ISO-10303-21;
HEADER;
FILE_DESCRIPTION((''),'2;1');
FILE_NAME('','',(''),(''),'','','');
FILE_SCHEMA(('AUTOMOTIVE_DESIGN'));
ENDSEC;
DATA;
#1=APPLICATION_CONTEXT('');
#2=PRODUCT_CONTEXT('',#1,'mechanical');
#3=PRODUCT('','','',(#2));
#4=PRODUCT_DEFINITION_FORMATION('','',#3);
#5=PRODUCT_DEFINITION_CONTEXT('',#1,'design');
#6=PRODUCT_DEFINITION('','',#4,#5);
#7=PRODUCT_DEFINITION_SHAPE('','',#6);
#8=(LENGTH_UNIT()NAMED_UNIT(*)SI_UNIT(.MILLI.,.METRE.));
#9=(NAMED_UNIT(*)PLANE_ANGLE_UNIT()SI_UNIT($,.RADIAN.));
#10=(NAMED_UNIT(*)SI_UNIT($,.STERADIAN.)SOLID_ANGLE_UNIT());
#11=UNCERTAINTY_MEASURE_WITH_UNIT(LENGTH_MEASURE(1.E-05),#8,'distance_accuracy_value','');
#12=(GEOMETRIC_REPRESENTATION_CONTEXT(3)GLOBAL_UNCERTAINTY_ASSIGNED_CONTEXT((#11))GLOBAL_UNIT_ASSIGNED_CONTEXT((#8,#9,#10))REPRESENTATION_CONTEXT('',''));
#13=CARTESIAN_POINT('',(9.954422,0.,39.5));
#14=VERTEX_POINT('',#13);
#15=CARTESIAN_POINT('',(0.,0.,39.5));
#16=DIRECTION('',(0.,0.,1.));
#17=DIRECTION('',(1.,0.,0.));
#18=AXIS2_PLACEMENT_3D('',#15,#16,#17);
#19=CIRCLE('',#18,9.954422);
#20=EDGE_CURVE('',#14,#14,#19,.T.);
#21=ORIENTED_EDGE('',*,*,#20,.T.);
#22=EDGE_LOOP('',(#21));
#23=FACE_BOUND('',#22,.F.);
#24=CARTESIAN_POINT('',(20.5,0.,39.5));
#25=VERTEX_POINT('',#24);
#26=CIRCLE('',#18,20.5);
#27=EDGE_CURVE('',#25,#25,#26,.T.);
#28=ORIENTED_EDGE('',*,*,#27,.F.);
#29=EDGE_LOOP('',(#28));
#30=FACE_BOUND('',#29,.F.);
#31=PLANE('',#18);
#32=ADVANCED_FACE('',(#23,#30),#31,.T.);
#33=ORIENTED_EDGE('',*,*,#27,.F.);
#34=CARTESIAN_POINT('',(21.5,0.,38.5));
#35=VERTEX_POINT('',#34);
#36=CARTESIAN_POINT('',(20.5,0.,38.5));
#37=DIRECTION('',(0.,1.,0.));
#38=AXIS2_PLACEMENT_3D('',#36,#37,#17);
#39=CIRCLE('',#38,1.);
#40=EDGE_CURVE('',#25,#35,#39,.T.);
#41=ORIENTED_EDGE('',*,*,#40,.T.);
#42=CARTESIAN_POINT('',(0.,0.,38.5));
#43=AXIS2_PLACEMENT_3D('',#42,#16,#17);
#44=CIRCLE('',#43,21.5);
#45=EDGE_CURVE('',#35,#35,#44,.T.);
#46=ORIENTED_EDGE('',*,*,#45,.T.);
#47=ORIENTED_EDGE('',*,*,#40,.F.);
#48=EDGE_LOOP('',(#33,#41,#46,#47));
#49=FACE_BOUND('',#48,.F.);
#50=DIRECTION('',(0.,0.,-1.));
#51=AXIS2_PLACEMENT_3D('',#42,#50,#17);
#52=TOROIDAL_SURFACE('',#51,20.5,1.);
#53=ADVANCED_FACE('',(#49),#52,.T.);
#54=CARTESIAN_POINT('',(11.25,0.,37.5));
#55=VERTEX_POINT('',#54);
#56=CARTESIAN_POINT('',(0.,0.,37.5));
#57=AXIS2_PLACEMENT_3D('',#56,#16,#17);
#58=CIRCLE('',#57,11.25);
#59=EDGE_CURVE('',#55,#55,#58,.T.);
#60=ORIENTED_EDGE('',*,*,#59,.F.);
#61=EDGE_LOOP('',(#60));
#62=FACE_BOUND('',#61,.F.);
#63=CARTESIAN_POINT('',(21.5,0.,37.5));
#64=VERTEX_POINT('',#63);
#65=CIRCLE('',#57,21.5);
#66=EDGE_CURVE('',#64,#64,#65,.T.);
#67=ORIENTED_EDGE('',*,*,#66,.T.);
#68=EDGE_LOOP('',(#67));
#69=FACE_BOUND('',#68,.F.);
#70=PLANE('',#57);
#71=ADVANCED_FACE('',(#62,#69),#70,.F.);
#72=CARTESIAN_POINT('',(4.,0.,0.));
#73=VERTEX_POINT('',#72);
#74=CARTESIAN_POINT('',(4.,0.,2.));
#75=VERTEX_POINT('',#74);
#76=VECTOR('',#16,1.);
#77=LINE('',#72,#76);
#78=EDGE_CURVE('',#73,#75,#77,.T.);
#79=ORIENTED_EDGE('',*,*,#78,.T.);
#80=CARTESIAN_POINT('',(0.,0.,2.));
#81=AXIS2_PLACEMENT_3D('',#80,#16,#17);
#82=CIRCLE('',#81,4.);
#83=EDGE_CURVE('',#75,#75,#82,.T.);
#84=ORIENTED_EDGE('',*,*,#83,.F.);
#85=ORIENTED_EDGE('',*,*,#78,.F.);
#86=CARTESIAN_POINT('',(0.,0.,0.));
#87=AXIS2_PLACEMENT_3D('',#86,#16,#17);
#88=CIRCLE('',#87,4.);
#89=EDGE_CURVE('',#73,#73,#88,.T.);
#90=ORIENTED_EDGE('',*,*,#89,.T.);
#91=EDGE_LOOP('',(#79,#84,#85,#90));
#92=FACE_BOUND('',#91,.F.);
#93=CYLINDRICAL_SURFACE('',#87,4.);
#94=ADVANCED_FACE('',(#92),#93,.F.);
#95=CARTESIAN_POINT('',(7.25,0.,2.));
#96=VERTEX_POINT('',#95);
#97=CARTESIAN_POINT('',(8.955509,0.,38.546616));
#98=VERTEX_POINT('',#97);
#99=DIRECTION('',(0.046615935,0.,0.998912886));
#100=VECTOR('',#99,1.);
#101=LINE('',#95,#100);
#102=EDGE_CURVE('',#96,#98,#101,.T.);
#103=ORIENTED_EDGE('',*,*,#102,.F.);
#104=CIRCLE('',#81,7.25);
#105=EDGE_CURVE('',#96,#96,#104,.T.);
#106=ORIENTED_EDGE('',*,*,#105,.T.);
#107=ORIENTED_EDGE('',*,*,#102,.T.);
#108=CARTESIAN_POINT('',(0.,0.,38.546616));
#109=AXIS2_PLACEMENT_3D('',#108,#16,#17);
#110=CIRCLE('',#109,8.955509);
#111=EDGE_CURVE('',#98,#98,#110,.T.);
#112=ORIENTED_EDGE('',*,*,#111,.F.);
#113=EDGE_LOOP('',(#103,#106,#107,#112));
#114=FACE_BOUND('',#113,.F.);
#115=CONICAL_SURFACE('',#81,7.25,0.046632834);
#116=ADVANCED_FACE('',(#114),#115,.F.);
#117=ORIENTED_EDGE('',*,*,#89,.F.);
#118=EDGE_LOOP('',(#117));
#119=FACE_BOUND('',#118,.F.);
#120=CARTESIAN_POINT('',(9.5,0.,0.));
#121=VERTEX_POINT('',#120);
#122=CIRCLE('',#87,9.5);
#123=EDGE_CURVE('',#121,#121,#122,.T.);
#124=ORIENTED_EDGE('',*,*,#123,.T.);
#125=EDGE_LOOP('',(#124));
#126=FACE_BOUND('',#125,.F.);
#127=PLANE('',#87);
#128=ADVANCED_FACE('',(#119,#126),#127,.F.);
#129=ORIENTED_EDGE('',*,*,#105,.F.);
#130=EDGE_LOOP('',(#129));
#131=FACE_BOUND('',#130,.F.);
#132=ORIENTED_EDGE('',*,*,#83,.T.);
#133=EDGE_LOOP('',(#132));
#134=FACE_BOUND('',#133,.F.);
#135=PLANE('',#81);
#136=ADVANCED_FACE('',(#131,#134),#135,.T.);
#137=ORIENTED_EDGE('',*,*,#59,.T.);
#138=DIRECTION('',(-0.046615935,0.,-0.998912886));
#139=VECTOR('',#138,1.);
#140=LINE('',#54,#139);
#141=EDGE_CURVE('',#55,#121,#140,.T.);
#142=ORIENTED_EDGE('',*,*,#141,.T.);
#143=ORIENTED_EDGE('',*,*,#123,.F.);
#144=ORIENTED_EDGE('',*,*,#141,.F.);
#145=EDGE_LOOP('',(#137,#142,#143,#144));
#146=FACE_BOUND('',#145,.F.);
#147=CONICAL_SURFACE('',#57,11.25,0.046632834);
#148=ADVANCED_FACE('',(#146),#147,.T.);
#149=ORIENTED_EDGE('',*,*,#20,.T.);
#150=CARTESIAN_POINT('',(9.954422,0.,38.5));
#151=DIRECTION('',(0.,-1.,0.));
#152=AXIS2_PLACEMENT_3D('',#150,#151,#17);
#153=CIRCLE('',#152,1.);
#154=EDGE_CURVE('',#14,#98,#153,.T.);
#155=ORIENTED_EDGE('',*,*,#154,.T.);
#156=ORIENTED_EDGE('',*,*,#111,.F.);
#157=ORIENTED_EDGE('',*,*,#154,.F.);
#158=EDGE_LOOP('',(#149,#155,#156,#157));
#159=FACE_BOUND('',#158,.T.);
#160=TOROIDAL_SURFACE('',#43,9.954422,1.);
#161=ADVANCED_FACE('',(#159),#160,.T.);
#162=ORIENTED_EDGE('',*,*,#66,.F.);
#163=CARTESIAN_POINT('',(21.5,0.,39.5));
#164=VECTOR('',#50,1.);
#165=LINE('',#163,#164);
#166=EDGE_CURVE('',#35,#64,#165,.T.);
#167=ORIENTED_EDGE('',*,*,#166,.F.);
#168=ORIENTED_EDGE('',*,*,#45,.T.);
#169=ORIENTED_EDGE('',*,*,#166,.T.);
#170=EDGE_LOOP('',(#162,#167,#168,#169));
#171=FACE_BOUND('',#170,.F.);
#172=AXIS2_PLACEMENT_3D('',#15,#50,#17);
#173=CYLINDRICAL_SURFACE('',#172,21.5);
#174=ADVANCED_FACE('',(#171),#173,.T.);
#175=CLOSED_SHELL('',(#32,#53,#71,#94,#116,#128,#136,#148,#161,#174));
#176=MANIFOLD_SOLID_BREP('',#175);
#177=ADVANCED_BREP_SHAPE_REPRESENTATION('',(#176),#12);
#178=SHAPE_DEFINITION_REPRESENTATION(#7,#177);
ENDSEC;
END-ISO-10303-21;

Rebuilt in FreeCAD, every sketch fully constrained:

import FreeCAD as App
import Part
import Sketcher


def edges_at(feature, points):
    """Names of the edges that pass closest to the given points."""
    edges = feature.Shape.Edges
    near = lambda p: min(range(len(edges)), key=lambda i: edges[i].distToShape(Part.Vertex(*p))[0])
    return sorted({f"Edge{near(p) + 1}" for p in points})

doc = App.newDocument("Part")
body = doc.addObject("PartDesign::Body", "Body")

# Sketch on XZ plane
sketch1 = doc.addObject("Sketcher::SketchObject", "Sketch")
body.addObject(sketch1)
sketch1.AttachmentSupport = (doc.XZ_Plane, [""])
sketch1.MapMode = "FlatFace"
sketch1.addGeometry([
    Part.LineSegment(App.Vector(21.5, 39.5, 0), App.Vector(9, 39.5, 0)),  # 0
    Part.LineSegment(App.Vector(9, 39.5, 0), App.Vector(7.2, 2, 0)),  # 1
    Part.LineSegment(App.Vector(7.2, 2, 0), App.Vector(4, 2, 0)),  # 2
    Part.LineSegment(App.Vector(4, 2, 0), App.Vector(4, 0, 0)),  # 3
    Part.LineSegment(App.Vector(4, 0, 0), App.Vector(9.5, 0, 0)),  # 4
    Part.LineSegment(App.Vector(9.5, 0, 0), App.Vector(11.2, 37.5, 0)),  # 5
    Part.LineSegment(App.Vector(11.2, 37.5, 0), App.Vector(21.5, 37.5, 0)),  # 6
    Part.LineSegment(App.Vector(21.5, 37.5, 0), App.Vector(21.5, 39.5, 0)),  # 7
], False)
sketch1.addConstraint([
    Sketcher.Constraint("Coincident", 0, 2, 1, 1),
    Sketcher.Constraint("Coincident", 1, 2, 2, 1),
    Sketcher.Constraint("Coincident", 2, 2, 3, 1),
    Sketcher.Constraint("Coincident", 3, 2, 4, 1),
    Sketcher.Constraint("Coincident", 4, 2, 5, 1),
    Sketcher.Constraint("Coincident", 5, 2, 6, 1),
    Sketcher.Constraint("Coincident", 6, 2, 7, 1),
    Sketcher.Constraint("Coincident", 7, 2, 0, 1),
    Sketcher.Constraint("Horizontal", 0),
    Sketcher.Constraint("Horizontal", 2),
    Sketcher.Constraint("Vertical", 3),
    Sketcher.Constraint("Horizontal", 4),
    Sketcher.Constraint("Horizontal", 6),
    Sketcher.Constraint("Vertical", 7),
    Sketcher.Constraint("PointOnObject", 3, 2, -1),
    Sketcher.Constraint("Parallel", 1, 5),
    Sketcher.Constraint("Equal", 3, 7),
    Sketcher.Constraint("DistanceY", 3, 2, 3, 1, 2.0),
    Sketcher.Constraint("DistanceX", 0, 2, 0, 1, 12.5),
    Sketcher.Constraint("DistanceX", 4, 1, 4, 2, 5.5),
    Sketcher.Constraint("DistanceX", -1, 1, 0, 2, 9.0),
    Sketcher.Constraint("DistanceX", -1, 1, 2, 2, 4.0),
    Sketcher.Constraint("DistanceX", 1, 2, 5, 2, 4.0),
    Sketcher.Constraint("DistanceY", -1, 1, 0, 2, 39.5),
])
revolution = doc.addObject("PartDesign::Revolution", "Revolution")
body.addObject(revolution)
revolution.Profile = sketch1
revolution.ReferenceAxis = (sketch1, ["V_Axis"])
revolution.Angle = 360
doc.recompute()

fillet = doc.addObject("PartDesign::Fillet", "Fillet")
body.addObject(fillet)
fillet.Base = (revolution, edges_at(revolution, [(-21.5, 0, 39.5), (-9, 0, 39.5)]))
fillet.Radius = 1

doc.recompute()
